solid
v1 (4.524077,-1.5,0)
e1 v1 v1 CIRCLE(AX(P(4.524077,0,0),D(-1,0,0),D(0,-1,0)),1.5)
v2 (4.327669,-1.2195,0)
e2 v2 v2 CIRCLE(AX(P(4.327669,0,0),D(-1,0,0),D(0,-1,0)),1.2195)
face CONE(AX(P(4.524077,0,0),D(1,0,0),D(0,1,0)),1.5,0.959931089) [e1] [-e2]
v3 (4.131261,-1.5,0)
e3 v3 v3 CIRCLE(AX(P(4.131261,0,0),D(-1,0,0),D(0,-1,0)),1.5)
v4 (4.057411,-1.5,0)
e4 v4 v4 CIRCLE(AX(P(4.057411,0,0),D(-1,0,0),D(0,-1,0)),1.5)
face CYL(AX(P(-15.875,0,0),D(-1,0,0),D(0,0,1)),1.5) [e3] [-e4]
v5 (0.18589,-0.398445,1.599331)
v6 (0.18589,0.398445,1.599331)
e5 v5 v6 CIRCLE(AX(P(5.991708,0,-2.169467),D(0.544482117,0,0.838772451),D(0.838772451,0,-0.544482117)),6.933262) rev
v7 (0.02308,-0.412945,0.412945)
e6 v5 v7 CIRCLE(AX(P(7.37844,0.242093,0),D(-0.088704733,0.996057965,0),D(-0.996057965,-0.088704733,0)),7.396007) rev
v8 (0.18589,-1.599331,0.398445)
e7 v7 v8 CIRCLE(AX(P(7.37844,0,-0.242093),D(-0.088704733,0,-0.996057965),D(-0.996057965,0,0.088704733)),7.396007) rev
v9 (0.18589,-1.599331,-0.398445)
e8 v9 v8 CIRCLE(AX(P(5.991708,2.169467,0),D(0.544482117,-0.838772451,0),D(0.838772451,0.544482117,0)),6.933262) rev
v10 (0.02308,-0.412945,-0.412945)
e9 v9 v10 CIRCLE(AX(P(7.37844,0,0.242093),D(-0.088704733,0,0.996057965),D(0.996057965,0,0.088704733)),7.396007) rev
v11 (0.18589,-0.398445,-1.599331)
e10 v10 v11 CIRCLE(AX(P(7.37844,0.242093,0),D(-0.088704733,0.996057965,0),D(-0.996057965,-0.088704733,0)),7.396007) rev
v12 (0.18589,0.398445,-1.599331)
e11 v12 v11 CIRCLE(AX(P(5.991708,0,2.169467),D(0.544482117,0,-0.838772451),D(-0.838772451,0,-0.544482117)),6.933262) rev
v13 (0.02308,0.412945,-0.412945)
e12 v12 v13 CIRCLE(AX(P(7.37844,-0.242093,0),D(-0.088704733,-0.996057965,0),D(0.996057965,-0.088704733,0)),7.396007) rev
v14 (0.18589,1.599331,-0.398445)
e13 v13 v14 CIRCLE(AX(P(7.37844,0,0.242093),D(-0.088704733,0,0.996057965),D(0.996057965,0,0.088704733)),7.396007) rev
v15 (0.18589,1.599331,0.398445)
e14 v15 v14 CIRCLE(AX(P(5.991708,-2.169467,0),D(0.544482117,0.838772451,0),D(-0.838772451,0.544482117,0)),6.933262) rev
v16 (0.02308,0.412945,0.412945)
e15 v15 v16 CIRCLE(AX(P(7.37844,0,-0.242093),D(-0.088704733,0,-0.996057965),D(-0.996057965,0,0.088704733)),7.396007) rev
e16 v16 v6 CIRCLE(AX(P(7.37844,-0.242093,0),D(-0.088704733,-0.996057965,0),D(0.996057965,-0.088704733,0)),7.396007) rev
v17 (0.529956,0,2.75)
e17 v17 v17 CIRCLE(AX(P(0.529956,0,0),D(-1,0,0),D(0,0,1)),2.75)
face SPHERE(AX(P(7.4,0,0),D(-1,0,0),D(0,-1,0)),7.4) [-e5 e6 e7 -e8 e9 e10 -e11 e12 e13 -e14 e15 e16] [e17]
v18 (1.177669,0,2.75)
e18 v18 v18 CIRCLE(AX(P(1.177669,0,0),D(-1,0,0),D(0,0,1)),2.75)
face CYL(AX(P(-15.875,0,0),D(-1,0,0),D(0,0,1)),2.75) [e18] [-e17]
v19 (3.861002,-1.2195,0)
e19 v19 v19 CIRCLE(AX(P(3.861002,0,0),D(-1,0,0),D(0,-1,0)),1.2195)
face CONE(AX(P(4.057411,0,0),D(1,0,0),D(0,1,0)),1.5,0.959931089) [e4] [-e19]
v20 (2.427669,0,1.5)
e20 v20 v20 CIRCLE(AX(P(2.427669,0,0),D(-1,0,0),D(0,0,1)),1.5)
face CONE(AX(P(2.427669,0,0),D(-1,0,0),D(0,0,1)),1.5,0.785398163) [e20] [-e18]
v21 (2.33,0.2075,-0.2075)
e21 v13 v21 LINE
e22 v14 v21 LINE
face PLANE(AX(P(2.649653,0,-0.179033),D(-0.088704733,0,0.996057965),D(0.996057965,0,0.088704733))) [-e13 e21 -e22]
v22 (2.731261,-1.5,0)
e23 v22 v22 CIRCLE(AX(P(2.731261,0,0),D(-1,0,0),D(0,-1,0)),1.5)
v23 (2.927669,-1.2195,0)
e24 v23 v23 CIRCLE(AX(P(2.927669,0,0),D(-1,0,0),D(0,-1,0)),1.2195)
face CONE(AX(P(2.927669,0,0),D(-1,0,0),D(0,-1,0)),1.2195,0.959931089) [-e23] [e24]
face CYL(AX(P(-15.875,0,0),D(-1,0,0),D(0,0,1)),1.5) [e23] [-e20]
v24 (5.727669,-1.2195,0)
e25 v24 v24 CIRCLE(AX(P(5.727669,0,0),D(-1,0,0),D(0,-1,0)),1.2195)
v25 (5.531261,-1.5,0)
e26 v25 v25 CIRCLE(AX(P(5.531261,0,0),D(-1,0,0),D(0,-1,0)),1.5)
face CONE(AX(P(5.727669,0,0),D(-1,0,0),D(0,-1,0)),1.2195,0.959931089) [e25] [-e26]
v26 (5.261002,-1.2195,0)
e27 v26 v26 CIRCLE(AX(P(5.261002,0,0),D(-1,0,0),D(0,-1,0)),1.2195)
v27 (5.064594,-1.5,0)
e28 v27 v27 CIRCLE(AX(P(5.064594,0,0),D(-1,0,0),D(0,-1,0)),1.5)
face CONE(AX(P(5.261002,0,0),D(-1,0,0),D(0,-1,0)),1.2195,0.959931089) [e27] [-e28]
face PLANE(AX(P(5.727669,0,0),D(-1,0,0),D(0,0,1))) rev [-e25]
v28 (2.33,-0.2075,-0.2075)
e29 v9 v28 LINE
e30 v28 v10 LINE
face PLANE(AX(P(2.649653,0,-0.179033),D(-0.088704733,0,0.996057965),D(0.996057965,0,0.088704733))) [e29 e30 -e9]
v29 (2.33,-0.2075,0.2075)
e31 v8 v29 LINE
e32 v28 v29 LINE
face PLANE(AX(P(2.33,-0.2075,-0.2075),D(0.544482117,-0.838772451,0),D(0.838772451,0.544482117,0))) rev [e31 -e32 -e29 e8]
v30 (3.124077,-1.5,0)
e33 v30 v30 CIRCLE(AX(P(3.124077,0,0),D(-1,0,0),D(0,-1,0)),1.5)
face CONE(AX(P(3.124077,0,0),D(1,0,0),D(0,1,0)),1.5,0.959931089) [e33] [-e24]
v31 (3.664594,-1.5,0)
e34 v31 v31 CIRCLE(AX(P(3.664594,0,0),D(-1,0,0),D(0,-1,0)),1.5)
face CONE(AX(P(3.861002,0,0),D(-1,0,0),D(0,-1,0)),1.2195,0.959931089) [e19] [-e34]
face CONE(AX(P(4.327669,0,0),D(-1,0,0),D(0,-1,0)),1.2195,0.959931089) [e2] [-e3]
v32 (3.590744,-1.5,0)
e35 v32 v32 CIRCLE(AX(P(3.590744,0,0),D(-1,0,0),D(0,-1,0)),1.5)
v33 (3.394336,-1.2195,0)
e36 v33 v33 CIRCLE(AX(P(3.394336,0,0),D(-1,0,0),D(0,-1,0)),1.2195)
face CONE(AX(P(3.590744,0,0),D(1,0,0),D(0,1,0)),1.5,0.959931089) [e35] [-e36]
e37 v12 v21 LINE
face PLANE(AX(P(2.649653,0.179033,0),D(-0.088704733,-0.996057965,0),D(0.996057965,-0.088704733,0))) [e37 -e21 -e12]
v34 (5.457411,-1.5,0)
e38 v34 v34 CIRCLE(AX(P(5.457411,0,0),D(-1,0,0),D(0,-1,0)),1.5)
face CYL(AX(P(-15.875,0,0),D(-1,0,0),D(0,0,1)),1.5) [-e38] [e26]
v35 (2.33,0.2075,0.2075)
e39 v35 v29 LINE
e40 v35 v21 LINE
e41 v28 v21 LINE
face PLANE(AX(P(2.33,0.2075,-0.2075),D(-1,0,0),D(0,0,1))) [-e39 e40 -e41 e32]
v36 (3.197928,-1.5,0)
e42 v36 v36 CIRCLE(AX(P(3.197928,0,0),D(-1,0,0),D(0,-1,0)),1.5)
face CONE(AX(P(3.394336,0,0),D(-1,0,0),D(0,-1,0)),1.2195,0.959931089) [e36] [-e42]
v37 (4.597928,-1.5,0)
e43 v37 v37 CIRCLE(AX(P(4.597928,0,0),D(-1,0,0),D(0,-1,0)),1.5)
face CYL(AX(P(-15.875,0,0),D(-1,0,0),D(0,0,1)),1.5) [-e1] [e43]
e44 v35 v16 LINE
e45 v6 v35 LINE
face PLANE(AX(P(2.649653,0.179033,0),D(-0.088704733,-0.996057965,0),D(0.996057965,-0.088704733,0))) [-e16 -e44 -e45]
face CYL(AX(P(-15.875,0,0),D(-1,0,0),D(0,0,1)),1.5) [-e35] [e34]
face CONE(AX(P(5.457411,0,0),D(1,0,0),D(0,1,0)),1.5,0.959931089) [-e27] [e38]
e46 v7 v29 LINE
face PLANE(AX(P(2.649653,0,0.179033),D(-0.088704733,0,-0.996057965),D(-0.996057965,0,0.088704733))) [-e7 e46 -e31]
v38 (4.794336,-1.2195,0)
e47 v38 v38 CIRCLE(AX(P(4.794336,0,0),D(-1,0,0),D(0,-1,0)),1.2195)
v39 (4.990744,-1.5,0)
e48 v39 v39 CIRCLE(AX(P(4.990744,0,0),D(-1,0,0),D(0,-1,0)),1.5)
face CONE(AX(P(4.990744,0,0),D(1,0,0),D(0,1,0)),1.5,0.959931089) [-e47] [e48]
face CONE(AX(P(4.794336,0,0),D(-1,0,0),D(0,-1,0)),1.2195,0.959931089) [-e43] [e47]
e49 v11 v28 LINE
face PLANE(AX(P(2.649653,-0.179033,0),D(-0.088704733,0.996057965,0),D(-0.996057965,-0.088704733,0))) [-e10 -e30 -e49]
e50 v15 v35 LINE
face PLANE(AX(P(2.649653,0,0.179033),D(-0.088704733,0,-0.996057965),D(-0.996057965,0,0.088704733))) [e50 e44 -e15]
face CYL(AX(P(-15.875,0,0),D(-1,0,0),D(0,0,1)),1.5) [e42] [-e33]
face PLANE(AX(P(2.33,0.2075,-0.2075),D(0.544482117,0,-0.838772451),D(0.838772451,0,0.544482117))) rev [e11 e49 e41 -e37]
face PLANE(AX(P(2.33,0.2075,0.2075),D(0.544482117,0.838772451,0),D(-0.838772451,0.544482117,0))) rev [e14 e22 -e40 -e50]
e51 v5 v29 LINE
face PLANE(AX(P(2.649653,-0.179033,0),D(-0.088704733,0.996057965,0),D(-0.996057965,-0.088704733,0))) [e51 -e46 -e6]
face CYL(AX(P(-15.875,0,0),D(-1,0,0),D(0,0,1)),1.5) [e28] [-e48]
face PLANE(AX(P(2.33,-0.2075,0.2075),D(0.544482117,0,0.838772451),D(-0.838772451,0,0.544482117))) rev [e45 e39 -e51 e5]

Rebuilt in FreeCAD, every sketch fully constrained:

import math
import FreeCAD as App
import Part
import Sketcher
Q = App.Units.Quantity

doc = App.newDocument("Part")
body = doc.addObject("PartDesign::Body", "Body")

# Sketch on XY plane
sketch1 = body.newObject("Sketcher::SketchObject", "Sketch")
sketch1.AttachmentSupport = (doc.getObject("XY_Plane"), [""])
sketch1.MapMode = "FlatFace"
sketch1.addGeometry([
    Part.LineSegment(App.Vector(0, 0, 0), App.Vector(5.7, 0, 0)),  # 0
    Part.LineSegment(App.Vector(5.7, 0, 0), App.Vector(5.7, 1.5, 0)),  # 1
    Part.LineSegment(App.Vector(5.7, 1.5, 0), App.Vector(2.4, 1.5, 0)),  # 2
    Part.LineSegment(App.Vector(2.4, 1.5, 0), App.Vector(1.2, 2.8, 0)),  # 3
    Part.LineSegment(App.Vector(1.2, 2.8, 0), App.Vector(0.5, 2.8, 0)),  # 4
    Part.ArcOfCircle(Part.Circle(App.Vector(7.4, 0, 0), App.Vector(0, 0, 1), 7.4), math.radians(158), math.radians(180)),  # 5
], False)
sketch1.addConstraint([
    Sketcher.Constraint("Coincident", 0, 2, 1, 1),
    Sketcher.Constraint("Coincident", 1, 2, 2, 1),
    Sketcher.Constraint("Coincident", 2, 2, 3, 1),
    Sketcher.Constraint("Coincident", 3, 2, 4, 1),
    Sketcher.Constraint("Coincident", 4, 2, 5, 1),
    Sketcher.Constraint("Coincident", 5, 2, 0, 1),
    Sketcher.Constraint("Horizontal", 0),
    Sketcher.Constraint("Vertical", 1),
    Sketcher.Constraint("Horizontal", 2),
    Sketcher.Constraint("Horizontal", 4),
    Sketcher.Constraint("Coincident", 5, 2, -1, 1),
    Sketcher.Constraint("PointOnObject", 5, 3, -1),
    Sketcher.Constraint("Radius", 5, 7.4),
    Sketcher.Constraint("Angle", 3, Q("135 deg")),
    Sketcher.Constraint("DistanceX", 2, 2, 2, 1, 3.3),
    Sketcher.Constraint("DistanceY", 1, 1, 1, 2, 1.5),
    Sketcher.Constraint("DistanceY", -1, 1, 3, 2, 2.75),
    Sketcher.Constraint("DistanceX", 0, 1, 0, 2, 5.727669),
])
revolution = body.newObject("PartDesign::Revolution", "Revolution")
revolution.Profile = sketch1
revolution.ReferenceAxis = (sketch1, ["H_Axis"])
revolution.Angle = 360

# Sketch on YZ plane
sketch2 = body.newObject("Sketcher::SketchObject", "Sketch001")
sketch2.AttachmentSupport = (doc.getObject("YZ_Plane"), [""])
sketch2.MapMode = "FlatFace"
sketch2.addGeometry([
    Part.LineSegment(App.Vector(-1.7, 0.4, 0), App.Vector(-1.7, -0.4, 0)),
    Part.LineSegment(App.Vector(-1.7, -0.4, 0), App.Vector(1.7, -0.4, 0)),
    Part.LineSegment(App.Vector(1.7, -0.4, 0), App.Vector(1.7, 0.4, 0)),
    Part.LineSegment(App.Vector(1.7, 0.4, 0), App.Vector(-1.7, 0.4, 0)),
], False)
sketch2.addConstraint([
    Sketcher.Constraint("Coincident", 0, 2, 1, 1),
    Sketcher.Constraint("Coincident", 1, 2, 2, 1),
    Sketcher.Constraint("Coincident", 2, 2, 3, 1),
    Sketcher.Constraint("Coincident", 3, 2, 0, 1),
    Sketcher.Constraint("Vertical", 0),
    Sketcher.Constraint("Horizontal", 1),
    Sketcher.Constraint("Vertical", 2),
    Sketcher.Constraint("Horizontal", 3),
    Sketcher.Constraint("Symmetric", 0, 2, 2, 2, -1, 1),
    Sketcher.Constraint("DistanceX", 1, 1, 1, 2, 3.44),
    Sketcher.Constraint("DistanceY", 0, 2, 0, 1, 0.83),
])

# Sketch on YZ plane
sketch3 = body.newObject("Sketcher::SketchObject", "Sketch002")
sketch3.AttachmentSupport = (doc.getObject("YZ_Plane"), [""])
sketch3.MapMode = "FlatFace"
sketch3.AttachmentOffset = App.Placement(App.Vector(0, 0, 2.33), App.Rotation())
sketch3.addGeometry([
    Part.LineSegment(App.Vector(-0.21, 0.21, 0), App.Vector(-0.21, -0.21, 0)),
    Part.LineSegment(App.Vector(-0.21, -0.21, 0), App.Vector(0.21, -0.21, 0)),
    Part.LineSegment(App.Vector(0.21, -0.21, 0), App.Vector(0.21, 0.21, 0)),
    Part.LineSegment(App.Vector(0.21, 0.21, 0), App.Vector(-0.21, 0.21, 0)),
], False)
sketch3.addConstraint([
    Sketcher.Constraint("Coincident", 0, 2, 1, 1),
    Sketcher.Constraint("Coincident", 1, 2, 2, 1),
    Sketcher.Constraint("Coincident", 2, 2, 3, 1),
    Sketcher.Constraint("Coincident", 3, 2, 0, 1),
    Sketcher.Constraint("Vertical", 0),
    Sketcher.Constraint("Horizontal", 1),
    Sketcher.Constraint("Vertical", 2),
    Sketcher.Constraint("Horizontal", 3),
    Sketcher.Constraint("Symmetric", 0, 2, 2, 2, -1, 1),
    Sketcher.Constraint("Equal", 3, 0),
    Sketcher.Constraint("DistanceX", 1, 1, 1, 2, 0.415),
])

subtractiveloft = body.newObject("PartDesign::SubtractiveLoft", "SubtractiveLoft")
subtractiveloft.Profile = sketch2
subtractiveloft.Sections = [sketch3]
doc.recompute()

polarpattern = body.newObject("PartDesign::PolarPattern", "PolarPattern")
polarpattern.Originals = [subtractiveloft]
polarpattern.Axis = (doc.getObject("X_Axis"), [""])
polarpattern.Angle = 90
polarpattern.Occurrences = 2
body.Tip = polarpattern

# Sketch on XY plane
sketch4 = body.newObject("Sketcher::SketchObject", "Sketch003")
sketch4.AttachmentSupport = (doc.getObject("XY_Plane"), [""])
sketch4.MapMode = "FlatFace"
sketch4.addGeometry([
    Part.LineSegment(App.Vector(2.93, -1.22, 0), App.Vector(2.73, -1.5, 0)),  # 0
    Part.LineSegment(App.Vector(2.73, -1.5, 0), App.Vector(2.73, -1.88, 0)),  # 1
    Part.LineSegment(App.Vector(2.73, -1.88, 0), App.Vector(3.12, -1.88, 0)),  # 2
    Part.LineSegment(App.Vector(3.12, -1.88, 0), App.Vector(3.12, -1.5, 0)),  # 3
    Part.LineSegment(App.Vector(3.12, -1.5, 0), App.Vector(2.93, -1.22, 0)),  # 4
], False)
sketch4.addConstraint([
    Sketcher.Constraint("Coincident", 0, 2, 1, 1),
    Sketcher.Constraint("Coincident", 1, 2, 2, 1),
    Sketcher.Constraint("Coincident", 2, 2, 3, 1),
    Sketcher.Constraint("Coincident", 3, 2, 4, 1),
    Sketcher.Constraint("Coincident", 4, 2, 0, 1),
    Sketcher.Constraint("Vertical", 1),
    Sketcher.Constraint("Horizontal", 2),
    Sketcher.Constraint("Vertical", 3),
    Sketcher.Constraint("Horizontal", 0, 2, 3, 2),
    Sketcher.Constraint("Equal", 0, 4),
    Sketcher.Constraint("Angle", 0, Q("-125 deg")),
    Sketcher.Constraint("DistanceY", 0, 2, -1, 1, 1.5),
    Sketcher.Constraint("DistanceY", 1, 2, 1, 1, 0.375),
    Sketcher.Constraint("DistanceY", 4, 2, -1, 1, 1.2195),
    Sketcher.Constraint("DistanceX", -1, 1, 0, 2, 2.731261),
])
groove = body.newObject("PartDesign::Groove", "Groove")
groove.Profile = sketch4
groove.ReferenceAxis = (sketch4, ["H_Axis"])
groove.Angle = 360
doc.recompute()

linearpattern = body.newObject("PartDesign::LinearPattern", "LinearPattern")
linearpattern.Originals = [groove]
linearpattern.Direction = (doc.getObject("X_Axis"), [""])
linearpattern.Mode = "offset"
linearpattern.Offset = 0.466667
linearpattern.Occurrences = 7
body.Tip = linearpattern

doc.recompute()
